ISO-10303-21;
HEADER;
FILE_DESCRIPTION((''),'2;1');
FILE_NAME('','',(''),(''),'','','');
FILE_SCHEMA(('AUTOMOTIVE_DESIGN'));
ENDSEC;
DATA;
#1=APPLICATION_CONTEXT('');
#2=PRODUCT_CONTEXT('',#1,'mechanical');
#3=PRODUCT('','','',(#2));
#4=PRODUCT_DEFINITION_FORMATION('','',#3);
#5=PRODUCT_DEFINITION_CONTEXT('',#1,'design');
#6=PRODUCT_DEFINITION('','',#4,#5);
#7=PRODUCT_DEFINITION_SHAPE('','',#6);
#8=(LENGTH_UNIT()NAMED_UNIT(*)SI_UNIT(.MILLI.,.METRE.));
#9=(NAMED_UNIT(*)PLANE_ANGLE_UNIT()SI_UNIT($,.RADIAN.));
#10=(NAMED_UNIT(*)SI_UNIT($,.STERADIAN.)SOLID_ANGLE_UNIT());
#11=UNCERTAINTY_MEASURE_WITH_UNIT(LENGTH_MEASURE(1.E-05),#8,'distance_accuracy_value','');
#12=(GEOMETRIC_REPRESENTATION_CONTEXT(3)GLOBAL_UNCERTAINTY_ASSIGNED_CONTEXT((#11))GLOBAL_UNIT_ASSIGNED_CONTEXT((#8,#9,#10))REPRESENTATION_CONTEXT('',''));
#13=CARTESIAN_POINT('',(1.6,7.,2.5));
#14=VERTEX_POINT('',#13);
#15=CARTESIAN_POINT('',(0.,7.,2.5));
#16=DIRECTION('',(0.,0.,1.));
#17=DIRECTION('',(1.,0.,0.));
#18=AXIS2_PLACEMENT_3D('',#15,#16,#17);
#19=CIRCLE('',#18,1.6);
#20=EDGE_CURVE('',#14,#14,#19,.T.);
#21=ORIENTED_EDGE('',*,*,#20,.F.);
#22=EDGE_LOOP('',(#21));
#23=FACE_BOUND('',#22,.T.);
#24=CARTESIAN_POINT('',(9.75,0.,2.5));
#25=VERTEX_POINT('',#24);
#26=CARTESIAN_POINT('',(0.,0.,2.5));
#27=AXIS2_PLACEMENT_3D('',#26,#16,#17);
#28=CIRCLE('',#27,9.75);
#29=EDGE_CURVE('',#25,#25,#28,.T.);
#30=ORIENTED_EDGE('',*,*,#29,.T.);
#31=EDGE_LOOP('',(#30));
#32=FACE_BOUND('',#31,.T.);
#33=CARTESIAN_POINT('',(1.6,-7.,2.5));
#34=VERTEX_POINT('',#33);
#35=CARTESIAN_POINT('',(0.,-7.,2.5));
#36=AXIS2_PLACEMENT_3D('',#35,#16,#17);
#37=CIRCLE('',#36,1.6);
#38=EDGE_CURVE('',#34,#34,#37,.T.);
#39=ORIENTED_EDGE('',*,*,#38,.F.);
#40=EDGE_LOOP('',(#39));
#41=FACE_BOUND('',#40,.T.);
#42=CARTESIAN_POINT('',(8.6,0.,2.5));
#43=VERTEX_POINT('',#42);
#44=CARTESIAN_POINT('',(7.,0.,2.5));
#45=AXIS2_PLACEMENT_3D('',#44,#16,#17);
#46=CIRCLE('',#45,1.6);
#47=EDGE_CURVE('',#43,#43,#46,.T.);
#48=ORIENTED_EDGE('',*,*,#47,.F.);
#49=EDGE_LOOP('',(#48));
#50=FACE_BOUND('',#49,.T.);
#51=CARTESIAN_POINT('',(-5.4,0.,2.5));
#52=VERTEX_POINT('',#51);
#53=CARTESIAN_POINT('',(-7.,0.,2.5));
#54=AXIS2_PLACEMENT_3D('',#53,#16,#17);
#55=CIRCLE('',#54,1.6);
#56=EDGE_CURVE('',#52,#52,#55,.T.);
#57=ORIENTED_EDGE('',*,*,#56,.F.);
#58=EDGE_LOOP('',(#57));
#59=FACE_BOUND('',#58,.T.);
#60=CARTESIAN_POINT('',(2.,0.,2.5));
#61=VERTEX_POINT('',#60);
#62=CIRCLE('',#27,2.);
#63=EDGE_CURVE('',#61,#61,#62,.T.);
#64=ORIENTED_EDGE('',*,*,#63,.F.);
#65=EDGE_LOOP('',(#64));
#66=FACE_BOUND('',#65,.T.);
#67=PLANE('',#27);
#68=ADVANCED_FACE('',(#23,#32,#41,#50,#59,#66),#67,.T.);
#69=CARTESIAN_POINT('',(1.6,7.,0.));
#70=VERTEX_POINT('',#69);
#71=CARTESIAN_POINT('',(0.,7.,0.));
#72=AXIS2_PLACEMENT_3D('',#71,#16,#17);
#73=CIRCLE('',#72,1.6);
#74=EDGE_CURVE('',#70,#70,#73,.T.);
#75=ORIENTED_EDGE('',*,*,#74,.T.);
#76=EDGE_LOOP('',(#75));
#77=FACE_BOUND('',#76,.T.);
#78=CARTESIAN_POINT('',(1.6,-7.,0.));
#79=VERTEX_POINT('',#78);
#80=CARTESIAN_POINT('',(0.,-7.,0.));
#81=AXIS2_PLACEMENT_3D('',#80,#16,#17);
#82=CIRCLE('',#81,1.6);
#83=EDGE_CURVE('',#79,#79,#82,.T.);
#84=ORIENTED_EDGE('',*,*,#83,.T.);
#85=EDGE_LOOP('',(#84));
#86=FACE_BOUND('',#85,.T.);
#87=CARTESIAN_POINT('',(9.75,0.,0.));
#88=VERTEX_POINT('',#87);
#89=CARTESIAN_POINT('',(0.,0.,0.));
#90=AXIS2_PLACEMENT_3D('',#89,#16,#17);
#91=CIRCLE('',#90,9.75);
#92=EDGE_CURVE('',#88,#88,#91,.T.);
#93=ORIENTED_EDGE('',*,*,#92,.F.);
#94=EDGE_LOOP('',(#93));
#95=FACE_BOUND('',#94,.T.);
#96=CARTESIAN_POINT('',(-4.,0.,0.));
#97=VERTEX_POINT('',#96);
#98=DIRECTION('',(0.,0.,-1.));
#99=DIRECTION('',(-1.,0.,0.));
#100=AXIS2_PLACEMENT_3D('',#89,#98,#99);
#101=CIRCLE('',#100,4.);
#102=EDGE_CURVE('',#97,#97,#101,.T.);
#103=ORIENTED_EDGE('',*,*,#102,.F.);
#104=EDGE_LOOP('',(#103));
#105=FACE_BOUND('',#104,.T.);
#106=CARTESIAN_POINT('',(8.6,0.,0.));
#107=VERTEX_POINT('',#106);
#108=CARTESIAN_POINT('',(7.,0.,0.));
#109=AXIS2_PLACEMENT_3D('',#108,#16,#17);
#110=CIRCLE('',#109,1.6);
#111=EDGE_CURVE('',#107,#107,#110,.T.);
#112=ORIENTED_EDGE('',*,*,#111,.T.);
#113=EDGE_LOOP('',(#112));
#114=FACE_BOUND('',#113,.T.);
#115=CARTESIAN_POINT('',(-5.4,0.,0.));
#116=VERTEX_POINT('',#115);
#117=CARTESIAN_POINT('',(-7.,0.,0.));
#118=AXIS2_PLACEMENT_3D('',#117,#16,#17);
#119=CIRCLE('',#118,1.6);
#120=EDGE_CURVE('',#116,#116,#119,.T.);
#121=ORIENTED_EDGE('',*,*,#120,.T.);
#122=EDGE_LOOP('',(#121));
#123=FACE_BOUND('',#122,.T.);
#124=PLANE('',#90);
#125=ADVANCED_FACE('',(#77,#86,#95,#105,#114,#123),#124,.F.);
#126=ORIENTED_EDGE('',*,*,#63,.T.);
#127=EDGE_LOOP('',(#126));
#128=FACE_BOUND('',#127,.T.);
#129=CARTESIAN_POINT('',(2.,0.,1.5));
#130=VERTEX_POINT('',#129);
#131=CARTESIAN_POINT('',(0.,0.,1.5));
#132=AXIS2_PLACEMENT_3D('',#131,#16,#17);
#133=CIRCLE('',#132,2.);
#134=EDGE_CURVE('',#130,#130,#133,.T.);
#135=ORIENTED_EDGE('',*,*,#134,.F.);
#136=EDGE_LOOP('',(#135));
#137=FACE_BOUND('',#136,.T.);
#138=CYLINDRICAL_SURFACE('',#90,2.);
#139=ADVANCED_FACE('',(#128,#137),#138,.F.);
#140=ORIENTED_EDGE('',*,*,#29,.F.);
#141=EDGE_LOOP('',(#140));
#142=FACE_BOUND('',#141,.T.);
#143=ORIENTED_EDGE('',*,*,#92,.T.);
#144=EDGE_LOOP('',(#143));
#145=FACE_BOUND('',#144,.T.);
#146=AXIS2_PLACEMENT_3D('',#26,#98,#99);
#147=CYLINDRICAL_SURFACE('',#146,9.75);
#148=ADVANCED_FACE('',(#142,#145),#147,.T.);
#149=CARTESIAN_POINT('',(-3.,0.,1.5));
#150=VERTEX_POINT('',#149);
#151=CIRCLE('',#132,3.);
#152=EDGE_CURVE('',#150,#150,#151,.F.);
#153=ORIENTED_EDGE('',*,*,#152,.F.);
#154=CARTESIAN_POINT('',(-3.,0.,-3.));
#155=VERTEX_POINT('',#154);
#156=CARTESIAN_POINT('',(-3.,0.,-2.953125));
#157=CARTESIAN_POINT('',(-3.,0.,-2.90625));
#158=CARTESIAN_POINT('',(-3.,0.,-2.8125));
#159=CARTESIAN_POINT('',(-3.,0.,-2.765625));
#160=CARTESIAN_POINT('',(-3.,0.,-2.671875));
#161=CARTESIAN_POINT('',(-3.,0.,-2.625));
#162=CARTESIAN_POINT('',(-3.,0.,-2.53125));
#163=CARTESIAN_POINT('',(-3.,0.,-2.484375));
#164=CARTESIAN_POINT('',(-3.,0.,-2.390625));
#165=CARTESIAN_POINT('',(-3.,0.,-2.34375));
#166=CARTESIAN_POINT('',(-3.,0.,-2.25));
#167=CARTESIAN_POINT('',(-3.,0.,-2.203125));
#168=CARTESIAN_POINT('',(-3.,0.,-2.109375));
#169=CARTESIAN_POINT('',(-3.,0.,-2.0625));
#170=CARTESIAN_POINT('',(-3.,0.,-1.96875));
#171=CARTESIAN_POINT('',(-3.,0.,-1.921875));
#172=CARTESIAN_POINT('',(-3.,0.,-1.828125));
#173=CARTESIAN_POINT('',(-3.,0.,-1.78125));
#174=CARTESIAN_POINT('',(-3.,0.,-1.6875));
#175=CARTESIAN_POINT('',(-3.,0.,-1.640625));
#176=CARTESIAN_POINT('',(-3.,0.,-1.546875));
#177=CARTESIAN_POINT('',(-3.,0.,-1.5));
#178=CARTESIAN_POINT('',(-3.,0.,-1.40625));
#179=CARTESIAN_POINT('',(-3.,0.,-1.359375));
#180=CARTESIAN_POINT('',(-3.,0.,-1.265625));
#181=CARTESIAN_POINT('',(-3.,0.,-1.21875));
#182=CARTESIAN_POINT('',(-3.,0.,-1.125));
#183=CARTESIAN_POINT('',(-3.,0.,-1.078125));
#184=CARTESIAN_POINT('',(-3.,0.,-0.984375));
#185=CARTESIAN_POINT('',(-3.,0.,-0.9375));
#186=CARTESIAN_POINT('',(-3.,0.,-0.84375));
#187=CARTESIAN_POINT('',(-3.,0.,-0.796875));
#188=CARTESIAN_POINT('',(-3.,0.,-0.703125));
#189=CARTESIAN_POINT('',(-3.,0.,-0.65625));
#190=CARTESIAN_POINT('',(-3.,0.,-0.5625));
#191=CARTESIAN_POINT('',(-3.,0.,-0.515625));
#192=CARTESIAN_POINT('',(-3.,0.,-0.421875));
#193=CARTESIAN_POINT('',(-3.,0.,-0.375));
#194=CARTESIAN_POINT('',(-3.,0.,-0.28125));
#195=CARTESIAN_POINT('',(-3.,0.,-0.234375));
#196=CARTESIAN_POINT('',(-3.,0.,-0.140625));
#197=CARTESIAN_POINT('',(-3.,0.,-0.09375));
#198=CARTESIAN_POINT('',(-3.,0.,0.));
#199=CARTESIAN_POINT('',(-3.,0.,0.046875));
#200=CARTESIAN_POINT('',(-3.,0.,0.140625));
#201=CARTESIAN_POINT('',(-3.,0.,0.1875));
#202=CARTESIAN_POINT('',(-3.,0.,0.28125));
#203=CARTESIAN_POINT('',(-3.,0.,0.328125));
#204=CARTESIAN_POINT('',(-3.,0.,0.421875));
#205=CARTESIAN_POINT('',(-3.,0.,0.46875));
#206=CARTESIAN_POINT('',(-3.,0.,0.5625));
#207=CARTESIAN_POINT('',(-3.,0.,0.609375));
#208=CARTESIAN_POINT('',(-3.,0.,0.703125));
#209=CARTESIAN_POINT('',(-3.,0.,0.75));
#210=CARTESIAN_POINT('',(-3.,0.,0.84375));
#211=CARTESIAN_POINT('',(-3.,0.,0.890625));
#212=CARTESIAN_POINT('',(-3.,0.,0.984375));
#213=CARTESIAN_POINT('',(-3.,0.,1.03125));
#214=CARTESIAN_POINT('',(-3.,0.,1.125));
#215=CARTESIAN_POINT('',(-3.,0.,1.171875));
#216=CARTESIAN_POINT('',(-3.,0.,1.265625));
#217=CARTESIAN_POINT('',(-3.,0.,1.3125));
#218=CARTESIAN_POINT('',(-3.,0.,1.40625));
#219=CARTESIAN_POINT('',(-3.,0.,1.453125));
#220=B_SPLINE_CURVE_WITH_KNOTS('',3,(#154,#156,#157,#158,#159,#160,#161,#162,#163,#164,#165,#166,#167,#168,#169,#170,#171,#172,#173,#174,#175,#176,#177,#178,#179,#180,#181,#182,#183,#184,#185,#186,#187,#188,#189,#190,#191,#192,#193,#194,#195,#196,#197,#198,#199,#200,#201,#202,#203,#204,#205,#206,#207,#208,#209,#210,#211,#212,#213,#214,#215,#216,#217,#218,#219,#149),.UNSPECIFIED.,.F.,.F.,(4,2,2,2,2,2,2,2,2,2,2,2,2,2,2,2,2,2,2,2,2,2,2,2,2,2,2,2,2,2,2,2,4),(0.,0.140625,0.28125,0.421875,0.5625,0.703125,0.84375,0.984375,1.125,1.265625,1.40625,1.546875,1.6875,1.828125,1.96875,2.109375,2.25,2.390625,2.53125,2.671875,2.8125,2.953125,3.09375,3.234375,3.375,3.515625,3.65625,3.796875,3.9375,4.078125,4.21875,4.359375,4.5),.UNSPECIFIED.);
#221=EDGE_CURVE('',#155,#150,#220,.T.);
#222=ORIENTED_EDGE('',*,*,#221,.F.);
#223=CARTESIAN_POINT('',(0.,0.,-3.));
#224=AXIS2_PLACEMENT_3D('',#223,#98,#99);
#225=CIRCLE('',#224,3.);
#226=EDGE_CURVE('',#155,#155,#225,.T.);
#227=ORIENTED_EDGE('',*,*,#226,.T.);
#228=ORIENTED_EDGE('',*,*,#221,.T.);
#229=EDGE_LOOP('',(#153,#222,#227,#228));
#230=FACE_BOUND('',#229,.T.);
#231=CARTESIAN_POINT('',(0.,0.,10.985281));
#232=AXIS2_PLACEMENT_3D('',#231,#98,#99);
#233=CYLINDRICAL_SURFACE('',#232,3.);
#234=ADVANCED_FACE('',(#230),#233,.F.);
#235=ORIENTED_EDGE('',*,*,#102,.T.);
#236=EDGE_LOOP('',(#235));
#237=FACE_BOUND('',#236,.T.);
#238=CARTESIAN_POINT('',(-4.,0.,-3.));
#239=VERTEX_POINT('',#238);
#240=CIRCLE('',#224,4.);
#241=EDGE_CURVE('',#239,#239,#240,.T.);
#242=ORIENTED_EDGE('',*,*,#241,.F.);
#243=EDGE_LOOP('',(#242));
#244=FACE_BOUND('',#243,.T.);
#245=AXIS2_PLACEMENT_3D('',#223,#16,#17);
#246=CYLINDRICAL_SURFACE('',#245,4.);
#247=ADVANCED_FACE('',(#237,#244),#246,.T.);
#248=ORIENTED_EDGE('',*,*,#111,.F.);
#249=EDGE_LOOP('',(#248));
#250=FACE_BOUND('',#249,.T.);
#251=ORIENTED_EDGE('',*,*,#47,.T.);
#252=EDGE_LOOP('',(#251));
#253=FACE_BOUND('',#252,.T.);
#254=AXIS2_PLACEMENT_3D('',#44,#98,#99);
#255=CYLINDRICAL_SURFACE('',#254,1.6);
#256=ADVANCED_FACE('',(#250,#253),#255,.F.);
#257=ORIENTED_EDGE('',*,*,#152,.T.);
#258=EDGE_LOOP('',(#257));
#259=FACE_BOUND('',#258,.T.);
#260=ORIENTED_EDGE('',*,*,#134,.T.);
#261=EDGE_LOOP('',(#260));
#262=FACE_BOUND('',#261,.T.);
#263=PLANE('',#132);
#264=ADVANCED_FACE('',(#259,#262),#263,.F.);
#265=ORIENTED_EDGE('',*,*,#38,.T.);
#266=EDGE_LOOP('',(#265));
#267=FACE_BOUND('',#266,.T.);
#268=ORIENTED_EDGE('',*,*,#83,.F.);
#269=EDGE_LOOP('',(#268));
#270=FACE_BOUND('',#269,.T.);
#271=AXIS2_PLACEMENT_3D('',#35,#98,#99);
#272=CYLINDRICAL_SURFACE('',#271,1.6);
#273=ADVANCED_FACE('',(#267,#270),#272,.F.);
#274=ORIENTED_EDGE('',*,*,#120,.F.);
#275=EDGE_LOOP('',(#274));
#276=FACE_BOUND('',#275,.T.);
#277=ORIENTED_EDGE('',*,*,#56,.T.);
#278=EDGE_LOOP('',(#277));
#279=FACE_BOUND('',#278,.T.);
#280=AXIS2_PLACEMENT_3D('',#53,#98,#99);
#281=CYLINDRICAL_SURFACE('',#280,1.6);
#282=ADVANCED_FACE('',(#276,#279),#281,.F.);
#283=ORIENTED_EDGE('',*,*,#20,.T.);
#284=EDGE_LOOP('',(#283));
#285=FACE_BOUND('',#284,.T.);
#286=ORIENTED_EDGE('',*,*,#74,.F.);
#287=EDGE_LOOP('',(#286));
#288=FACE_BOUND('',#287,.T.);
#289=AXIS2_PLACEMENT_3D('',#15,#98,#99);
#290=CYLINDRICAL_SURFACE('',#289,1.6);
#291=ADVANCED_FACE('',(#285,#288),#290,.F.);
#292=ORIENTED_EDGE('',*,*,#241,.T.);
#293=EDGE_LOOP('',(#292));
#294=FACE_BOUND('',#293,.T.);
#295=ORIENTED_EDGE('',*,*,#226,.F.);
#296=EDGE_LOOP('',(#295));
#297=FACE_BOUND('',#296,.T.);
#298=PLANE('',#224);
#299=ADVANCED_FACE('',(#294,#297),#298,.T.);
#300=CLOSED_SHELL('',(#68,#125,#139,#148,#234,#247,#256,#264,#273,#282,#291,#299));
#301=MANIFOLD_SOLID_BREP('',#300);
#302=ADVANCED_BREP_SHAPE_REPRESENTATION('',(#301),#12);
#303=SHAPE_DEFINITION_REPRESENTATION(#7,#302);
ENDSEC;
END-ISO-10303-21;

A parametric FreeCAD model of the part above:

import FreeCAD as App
import Part
import Sketcher
from FreeCAD import Vector
Q = App.Units.Quantity

doc = App.newDocument("Part")
body = doc.addObject("PartDesign::Body", "Body")

# Sketch on XY plane
sketch1 = body.newObject("Sketcher::SketchObject", "Sketch")
sketch1.AttachmentSupport = (doc.getObject("XY_Plane"), [""])
sketch1.MapMode = "FlatFace"
sketch1.addGeometry([
    Part.Circle(Vector(0, 0, 0), Vector(0, 0, 1), 9.75),  # 0
    Part.Circle(Vector(0, -7, 0), Vector(0, 0, 1), 1.6),  # 1
    Part.Circle(Vector(-7, 0, 0), Vector(0, 0, 1), 1.6),  # 2
    Part.Circle(Vector(7, 0, 0), Vector(0, 0, 1), 1.6),  # 3
    Part.Circle(Vector(0, 7, 0), Vector(0, 0, 1), 1.6),  # 4
], False)
sketch1.addConstraint([
    Sketcher.Constraint("Coincident", 0, 3, -1, 1),
    Sketcher.Constraint("Equal", 1, 2),
    Sketcher.Constraint("Equal", 2, 3),
    Sketcher.Constraint("Equal", 3, 4),
    Sketcher.Constraint("Symmetric", 2, 3, 3, 3, -1, 1),
    Sketcher.Constraint("Symmetric", 1, 3, 4, 3, -1, 1),
    Sketcher.Constraint("PointOnObject", 1, 3, -2),
    Sketcher.Constraint("PointOnObject", 2, 3, -1),
    Sketcher.Constraint("Diameter", 0, Q("19.5 mm")),
    Sketcher.Constraint("Diameter", 1, Q("3.2 mm")),
    Sketcher.Constraint("DistanceY", 1, 3, -1, 1, Q("7 mm")),
    Sketcher.Constraint("DistanceX", 2, 3, -1, 1, Q("7 mm")),
])
pad1 = body.newObject("PartDesign::Pad", "Pad")
pad1.Profile = sketch1
pad1.Length = 2.5

# Sketch on XY plane
sketch2 = body.newObject("Sketcher::SketchObject", "Sketch001")
sketch2.AttachmentSupport = (doc.getObject("XY_Plane"), [""])
sketch2.MapMode = "FlatFace"
sketch2.addGeometry(Part.Circle(Vector(0, 0, 0), Vector(0, 0, 1), 4), False)
sketch2.addConstraint([
    Sketcher.Constraint("Coincident", 0, 3, -1, 1),
    Sketcher.Constraint("Diameter", 0, Q("8 mm")),
])
pad2 = body.newObject("PartDesign::Pad", "Pad001")
pad2.Profile = sketch2
pad2.Length = 3
pad2.Reversed = True

# Sketch on XY plane
sketch3 = body.newObject("Sketcher::SketchObject", "Sketch002")
sketch3.AttachmentSupport = (doc.getObject("XY_Plane"), [""])
sketch3.MapMode = "FlatFace"
sketch3.AttachmentOffset = App.Placement(Vector(0, 0, -3), App.Rotation())
sketch3.addGeometry(Part.Circle(Vector(0, 0, 0), Vector(0, 0, 1), 3), False)
sketch3.addConstraint([
    Sketcher.Constraint("Coincident", 0, 3, -1, 1),
    Sketcher.Constraint("Diameter", 0, Q("6 mm")),
])
pocket1 = body.newObject("PartDesign::Pocket", "Pocket")
pocket1.Profile = sketch3
pocket1.Length = 4.5
pocket1.Reversed = True

# Sketch on XY plane
sketch4 = body.newObject("Sketcher::SketchObject", "Sketch003")
sketch4.AttachmentSupport = (doc.getObject("XY_Plane"), [""])
sketch4.MapMode = "FlatFace"
sketch4.AttachmentOffset = App.Placement(Vector(0, 0, 2.5), App.Rotation())
sketch4.addGeometry(Part.Circle(Vector(0, 0, 0), Vector(0, 0, 1), 2), False)
sketch4.addConstraint([
    Sketcher.Constraint("Coincident", 0, 3, -1, 1),
    Sketcher.Constraint("Diameter", 0, Q("4 mm")),
])
pocket2 = body.newObject("PartDesign::Pocket", "Pocket001")
pocket2.Profile = sketch4
pocket2.Length = 2.5

doc.recompute()
